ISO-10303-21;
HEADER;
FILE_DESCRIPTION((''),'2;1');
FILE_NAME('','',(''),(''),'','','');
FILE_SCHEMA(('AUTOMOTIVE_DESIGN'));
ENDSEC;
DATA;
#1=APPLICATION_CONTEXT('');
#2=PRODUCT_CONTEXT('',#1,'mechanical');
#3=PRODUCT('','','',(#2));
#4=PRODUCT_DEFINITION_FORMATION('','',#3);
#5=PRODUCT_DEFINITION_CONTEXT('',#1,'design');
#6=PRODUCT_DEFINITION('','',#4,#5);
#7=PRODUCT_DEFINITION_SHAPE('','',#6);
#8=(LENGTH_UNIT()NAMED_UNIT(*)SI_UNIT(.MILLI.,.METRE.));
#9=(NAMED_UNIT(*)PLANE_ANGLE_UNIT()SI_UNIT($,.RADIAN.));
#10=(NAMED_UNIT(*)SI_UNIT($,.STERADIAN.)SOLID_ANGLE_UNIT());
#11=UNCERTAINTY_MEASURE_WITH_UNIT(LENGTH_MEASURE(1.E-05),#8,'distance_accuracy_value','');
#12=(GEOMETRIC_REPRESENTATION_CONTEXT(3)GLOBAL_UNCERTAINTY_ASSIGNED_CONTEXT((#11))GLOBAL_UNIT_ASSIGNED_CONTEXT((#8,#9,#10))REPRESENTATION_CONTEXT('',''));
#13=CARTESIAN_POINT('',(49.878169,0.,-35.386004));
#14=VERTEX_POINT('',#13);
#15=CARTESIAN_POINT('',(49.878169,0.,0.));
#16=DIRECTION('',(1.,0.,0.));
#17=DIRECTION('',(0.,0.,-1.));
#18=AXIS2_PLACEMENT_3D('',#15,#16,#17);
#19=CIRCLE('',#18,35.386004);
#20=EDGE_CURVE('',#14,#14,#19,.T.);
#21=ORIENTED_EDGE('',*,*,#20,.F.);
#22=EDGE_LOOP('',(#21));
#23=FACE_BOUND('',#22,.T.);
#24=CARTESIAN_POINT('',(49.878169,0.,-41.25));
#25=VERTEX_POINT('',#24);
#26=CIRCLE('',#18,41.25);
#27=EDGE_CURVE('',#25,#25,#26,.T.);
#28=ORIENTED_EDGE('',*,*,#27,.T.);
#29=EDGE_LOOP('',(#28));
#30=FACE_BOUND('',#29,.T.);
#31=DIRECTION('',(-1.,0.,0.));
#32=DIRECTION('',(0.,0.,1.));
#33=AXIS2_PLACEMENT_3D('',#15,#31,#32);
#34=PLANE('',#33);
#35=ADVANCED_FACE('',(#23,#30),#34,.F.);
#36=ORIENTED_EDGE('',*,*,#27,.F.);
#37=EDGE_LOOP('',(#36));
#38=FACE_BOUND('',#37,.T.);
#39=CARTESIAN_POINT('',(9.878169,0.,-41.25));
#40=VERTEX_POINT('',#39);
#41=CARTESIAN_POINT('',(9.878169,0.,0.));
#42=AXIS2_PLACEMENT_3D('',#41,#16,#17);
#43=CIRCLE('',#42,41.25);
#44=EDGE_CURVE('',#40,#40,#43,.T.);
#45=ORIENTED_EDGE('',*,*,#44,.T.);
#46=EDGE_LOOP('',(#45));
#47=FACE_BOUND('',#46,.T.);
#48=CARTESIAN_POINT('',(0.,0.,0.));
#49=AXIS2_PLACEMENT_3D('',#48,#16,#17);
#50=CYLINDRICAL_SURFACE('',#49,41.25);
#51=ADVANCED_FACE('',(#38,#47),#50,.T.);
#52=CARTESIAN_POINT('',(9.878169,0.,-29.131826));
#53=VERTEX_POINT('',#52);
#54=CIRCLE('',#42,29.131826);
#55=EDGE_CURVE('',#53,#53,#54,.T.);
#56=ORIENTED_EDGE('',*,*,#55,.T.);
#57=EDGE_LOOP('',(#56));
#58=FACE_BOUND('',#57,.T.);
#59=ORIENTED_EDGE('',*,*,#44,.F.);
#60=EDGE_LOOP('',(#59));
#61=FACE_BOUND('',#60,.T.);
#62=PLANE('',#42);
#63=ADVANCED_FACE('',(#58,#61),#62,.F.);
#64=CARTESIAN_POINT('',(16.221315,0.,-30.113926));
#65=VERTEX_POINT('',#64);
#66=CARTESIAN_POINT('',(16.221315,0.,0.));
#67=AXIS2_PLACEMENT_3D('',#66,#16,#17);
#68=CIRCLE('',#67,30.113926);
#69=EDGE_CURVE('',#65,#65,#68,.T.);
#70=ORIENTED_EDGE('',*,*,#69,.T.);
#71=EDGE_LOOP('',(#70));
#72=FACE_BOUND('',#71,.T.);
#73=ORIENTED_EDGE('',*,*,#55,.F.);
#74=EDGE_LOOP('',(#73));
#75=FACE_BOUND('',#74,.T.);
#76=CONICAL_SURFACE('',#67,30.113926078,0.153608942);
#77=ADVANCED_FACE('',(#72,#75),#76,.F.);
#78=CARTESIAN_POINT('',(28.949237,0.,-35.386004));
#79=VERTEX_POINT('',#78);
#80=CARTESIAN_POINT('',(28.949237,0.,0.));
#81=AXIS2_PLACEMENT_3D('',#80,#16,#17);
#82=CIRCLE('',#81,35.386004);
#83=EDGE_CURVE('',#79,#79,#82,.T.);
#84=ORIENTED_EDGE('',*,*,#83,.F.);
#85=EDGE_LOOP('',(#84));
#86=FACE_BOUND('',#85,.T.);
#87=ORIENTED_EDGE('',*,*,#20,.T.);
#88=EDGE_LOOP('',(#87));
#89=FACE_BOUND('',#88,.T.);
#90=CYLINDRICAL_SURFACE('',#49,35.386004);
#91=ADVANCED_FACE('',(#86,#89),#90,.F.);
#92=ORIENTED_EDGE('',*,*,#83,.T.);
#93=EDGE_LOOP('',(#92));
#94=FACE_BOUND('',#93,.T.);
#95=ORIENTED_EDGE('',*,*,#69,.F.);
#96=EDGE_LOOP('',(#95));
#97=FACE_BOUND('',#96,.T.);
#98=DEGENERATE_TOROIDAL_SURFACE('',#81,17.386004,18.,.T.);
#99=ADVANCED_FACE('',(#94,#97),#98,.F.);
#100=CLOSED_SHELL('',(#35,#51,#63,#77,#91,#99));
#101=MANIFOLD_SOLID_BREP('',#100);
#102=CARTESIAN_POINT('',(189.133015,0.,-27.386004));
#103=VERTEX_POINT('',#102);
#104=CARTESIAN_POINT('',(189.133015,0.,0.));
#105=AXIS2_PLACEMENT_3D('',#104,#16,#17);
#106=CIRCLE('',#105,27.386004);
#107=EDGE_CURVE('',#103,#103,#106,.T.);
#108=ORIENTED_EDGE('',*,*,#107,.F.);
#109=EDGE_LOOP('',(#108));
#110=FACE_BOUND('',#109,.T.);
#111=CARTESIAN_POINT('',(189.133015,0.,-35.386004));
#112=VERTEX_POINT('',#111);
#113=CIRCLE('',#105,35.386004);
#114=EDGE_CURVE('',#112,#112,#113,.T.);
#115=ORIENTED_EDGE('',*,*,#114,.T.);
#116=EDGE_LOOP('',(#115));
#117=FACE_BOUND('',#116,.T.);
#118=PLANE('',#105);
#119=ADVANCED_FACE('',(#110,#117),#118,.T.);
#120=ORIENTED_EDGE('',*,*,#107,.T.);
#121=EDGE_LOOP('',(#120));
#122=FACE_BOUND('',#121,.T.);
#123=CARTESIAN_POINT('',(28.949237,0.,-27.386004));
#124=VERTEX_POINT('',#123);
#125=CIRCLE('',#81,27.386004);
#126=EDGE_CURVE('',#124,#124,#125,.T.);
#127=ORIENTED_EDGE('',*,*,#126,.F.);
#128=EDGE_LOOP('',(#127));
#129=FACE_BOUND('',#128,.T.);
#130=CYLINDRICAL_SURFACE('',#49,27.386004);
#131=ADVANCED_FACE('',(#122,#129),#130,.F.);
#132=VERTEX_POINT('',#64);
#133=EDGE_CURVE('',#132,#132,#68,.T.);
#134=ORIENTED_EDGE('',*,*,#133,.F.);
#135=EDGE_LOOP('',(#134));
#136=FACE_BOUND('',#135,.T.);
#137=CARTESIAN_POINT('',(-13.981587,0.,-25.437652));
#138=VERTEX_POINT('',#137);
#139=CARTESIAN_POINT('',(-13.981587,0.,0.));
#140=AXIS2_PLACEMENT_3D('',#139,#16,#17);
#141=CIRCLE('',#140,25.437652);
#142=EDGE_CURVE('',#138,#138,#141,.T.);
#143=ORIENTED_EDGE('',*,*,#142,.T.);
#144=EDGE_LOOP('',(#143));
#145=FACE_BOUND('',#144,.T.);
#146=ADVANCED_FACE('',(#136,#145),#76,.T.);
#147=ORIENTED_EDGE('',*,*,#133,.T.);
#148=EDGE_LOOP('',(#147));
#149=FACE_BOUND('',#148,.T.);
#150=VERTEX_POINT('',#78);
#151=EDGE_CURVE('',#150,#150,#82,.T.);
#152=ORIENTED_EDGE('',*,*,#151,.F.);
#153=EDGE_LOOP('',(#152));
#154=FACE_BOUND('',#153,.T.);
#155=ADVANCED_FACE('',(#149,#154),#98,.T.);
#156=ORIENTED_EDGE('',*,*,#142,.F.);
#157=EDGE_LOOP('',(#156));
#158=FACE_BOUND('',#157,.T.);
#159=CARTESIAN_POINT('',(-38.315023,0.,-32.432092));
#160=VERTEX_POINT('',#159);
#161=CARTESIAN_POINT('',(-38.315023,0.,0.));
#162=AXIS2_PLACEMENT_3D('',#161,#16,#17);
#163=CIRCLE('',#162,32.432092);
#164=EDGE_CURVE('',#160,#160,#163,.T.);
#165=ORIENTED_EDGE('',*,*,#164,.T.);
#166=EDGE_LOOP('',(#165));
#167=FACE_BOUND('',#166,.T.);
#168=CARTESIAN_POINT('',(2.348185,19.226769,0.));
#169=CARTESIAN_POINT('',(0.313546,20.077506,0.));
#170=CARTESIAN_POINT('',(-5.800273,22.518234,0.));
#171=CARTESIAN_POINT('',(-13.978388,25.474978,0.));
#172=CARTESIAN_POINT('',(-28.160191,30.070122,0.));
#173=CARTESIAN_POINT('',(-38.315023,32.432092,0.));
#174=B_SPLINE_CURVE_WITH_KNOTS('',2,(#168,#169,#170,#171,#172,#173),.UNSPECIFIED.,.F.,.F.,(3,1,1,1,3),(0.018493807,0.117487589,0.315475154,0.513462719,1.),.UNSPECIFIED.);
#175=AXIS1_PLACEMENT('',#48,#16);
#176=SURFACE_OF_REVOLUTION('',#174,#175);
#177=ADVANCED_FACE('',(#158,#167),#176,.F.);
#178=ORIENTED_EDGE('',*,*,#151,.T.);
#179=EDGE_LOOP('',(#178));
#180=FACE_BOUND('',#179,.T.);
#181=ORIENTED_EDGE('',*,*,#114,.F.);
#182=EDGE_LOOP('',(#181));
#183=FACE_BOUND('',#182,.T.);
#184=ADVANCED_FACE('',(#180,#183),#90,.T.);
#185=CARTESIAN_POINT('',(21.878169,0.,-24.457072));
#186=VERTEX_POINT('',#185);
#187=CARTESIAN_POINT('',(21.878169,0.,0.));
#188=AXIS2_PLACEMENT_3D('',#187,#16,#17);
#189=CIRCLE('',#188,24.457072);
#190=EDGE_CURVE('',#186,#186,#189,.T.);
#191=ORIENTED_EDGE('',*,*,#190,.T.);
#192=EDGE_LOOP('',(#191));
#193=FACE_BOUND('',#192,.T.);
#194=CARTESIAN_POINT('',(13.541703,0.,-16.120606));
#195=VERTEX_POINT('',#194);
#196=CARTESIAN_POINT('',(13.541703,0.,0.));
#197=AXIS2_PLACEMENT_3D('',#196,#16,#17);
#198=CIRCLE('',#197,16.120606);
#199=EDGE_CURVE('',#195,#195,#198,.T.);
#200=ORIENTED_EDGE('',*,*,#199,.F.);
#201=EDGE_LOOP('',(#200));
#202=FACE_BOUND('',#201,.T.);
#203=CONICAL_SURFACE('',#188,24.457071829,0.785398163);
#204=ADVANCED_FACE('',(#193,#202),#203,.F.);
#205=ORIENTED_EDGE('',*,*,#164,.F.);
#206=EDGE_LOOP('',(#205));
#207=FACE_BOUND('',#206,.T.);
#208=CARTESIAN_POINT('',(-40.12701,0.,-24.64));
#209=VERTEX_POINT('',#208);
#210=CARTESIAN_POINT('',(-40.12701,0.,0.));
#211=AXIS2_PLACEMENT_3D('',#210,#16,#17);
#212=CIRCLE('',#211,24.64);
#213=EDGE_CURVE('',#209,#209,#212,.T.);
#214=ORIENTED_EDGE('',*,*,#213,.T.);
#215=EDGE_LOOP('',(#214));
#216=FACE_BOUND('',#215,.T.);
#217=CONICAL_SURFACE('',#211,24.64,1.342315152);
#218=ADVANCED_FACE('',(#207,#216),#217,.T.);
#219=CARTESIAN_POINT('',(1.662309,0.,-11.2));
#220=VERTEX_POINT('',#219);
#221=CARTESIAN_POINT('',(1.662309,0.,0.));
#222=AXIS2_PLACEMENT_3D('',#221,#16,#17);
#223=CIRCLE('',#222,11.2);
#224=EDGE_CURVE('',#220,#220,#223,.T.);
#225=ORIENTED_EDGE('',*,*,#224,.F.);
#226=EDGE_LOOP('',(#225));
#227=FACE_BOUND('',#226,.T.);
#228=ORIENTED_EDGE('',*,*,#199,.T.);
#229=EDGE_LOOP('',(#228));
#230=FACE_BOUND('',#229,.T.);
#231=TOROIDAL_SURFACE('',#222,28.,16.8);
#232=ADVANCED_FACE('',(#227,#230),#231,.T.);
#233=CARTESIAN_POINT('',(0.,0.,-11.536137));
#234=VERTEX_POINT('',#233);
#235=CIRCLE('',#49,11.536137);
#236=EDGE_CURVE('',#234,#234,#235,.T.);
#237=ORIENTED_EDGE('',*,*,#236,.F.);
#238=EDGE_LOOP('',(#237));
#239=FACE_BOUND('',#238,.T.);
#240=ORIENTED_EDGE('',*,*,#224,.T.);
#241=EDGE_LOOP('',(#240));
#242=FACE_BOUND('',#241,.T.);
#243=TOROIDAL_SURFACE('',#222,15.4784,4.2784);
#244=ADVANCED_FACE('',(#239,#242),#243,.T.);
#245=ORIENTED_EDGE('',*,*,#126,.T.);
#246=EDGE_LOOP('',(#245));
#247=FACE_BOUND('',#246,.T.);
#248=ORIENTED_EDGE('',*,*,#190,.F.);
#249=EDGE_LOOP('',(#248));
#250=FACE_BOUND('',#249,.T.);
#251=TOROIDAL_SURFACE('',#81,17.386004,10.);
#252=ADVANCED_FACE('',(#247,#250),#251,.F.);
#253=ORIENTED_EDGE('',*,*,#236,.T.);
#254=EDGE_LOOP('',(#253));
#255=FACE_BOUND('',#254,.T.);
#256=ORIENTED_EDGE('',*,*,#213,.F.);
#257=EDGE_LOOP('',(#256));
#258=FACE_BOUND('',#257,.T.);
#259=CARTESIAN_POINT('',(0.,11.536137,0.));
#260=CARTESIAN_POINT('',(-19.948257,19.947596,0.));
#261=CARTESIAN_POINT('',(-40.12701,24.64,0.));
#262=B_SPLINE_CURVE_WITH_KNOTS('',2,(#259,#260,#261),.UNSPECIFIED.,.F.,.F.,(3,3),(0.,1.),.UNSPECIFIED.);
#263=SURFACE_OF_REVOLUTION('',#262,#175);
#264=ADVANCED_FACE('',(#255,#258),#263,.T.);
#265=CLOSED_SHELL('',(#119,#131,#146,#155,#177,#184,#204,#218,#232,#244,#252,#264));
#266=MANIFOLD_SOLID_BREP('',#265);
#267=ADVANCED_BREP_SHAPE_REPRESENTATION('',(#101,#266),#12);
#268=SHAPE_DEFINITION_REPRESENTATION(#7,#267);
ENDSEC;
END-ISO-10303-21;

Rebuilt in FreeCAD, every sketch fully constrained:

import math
import FreeCAD as App
import Part
import Sketcher
Q = App.Units.Quantity

doc = App.newDocument("Part")
body = doc.addObject("PartDesign::Body", "Body")

sketch1 = body.newObject("Sketcher::SketchObject", "Sketch")
sketch1.AttachmentSupport = (doc.getObject("XY_Plane"), [""])
sketch1.MapMode = "FlatFace"
sketch1.addGeometry(Part.LineSegment(App.Vector(28.949237, 27.386004, 0), App.Vector(189.133015, 27.386004, 0)), False)
sketch1.addGeometry(Part.LineSegment(App.Vector(189.133015, 27.386004, 0), App.Vector(189.133015, 35.386004, 0)), False)
sketch1.addGeometry(Part.LineSegment(App.Vector(189.133015, 35.386004, 0), App.Vector(28.949237, 35.386004, 0)), False)
sketch1.addGeometry(Part.ArcOfCircle(Part.Circle(App.Vector(28.949237, 17.386004, 0), App.Vector(0, 0, 1), 18), math.radians(90), math.radians(135)), False)
sketch1.addGeometry(Part.LineSegment(App.Vector(16.221315, 30.113926, 0), App.Vector(-13.981587, 25.437652, 0)), False)
sketch1.addGeometry(Part.BSplineCurve([App.Vector(-13.981587, 25.437652, 0), App.Vector(-16.029315, 26.139513, 0), App.Vector(-28.160191, 30.070122, 0), App.Vector(-38.315023, 32.432092, 0)], [3, 1, 3], [0.414468937, 0.513462719, 1], False, 2, [1, 1, 1, 1], False), False)
sketch1.addGeometry(Part.LineSegment(App.Vector(-38.315023, 32.432092, 0), App.Vector(-40.12701, 24.64, 0)), False)
sketch1.addGeometry(Part.BSplineCurve([App.Vector(0, 11.536137, 0), App.Vector(-19.948257, 19.947596, 0), App.Vector(-40.12701, 24.64, 0)], [3, 3], [0, 1], False, 2, [1, 1, 1], False), False)
sketch1.addGeometry(Part.ArcOfCircle(Part.Circle(App.Vector(1.662309, 15.4784, 0), App.Vector(0, 0, 1), 4.2784), math.radians(-112.863392), math.radians(-90)), False)
sketch1.addGeometry(Part.ArcOfCircle(Part.Circle(App.Vector(1.662309, 28, 0), App.Vector(0, 0, 1), 16.8), math.radians(-90), math.radians(-45)), False)
sketch1.addGeometry(Part.LineSegment(App.Vector(13.541703, 16.120606, 0), App.Vector(21.878169, 24.457072, 0)), False)
sketch1.addGeometry(Part.ArcOfCircle(Part.Circle(App.Vector(28.949237, 17.386004, 0), App.Vector(0, 0, 1), 10), math.radians(90), math.radians(135)), False)
sketch1.addConstraint(Sketcher.Constraint("Block", 5))
sketch1.addConstraint(Sketcher.Constraint("Block", 7))
sketch1.addConstraint(Sketcher.Constraint("Coincident", 0, 2, 1, 1))
sketch1.addConstraint(Sketcher.Constraint("Coincident", 1, 2, 2, 1))
sketch1.addConstraint(Sketcher.Constraint("Tangent", 2, 2, 3, 1))
sketch1.addConstraint(Sketcher.Constraint("Coincident", 3, 2, 4, 1))
sketch1.addConstraint(Sketcher.Constraint("Coincident", 4, 2, 5, 1))
sketch1.addConstraint(Sketcher.Constraint("Coincident", 5, 2, 6, 1))
sketch1.addConstraint(Sketcher.Constraint("Coincident", 6, 2, 7, 2))
sketch1.addConstraint(Sketcher.Constraint("Coincident", 7, 1, 8, 1))
sketch1.addConstraint(Sketcher.Constraint("Tangent", 8, 2, 9, 1))
sketch1.addConstraint(Sketcher.Constraint("Tangent", 9, 2, 10, 1))
sketch1.addConstraint(Sketcher.Constraint("Tangent", 10, 2, 11, 2))
sketch1.addConstraint(Sketcher.Constraint("Tangent", 11, 1, 0, 1))
sketch1.addConstraint(Sketcher.Constraint("Horizontal", 0))
sketch1.addConstraint(Sketcher.Constraint("Vertical", 1))
sketch1.addConstraint(Sketcher.Constraint("Horizontal", 2))
sketch1.addConstraint(Sketcher.Constraint("Coincident", 11, 3, 3, 3))
sketch1.addConstraint(Sketcher.Constraint("Vertical", 8, 3, 9, 3))
sketch1.addConstraint(Sketcher.Constraint("Radius", 3, Q("18 mm")))
sketch1.addConstraint(Sketcher.Constraint("Radius", 11, Q("10 mm")))
sketch1.addConstraint(Sketcher.Constraint("Radius", 9, Q("16.8 mm")))
sketch1.addConstraint(Sketcher.Constraint("Angle", 10, Q("45 deg")))
sketch1.addConstraint(Sketcher.Constraint("DistanceY", -1, 1, 9, 3, Q("28 mm")))
sketch1.addConstraint(Sketcher.Constraint("Radius", 8, Q("4.2784 mm")))
sketch1.addConstraint(Sketcher.Constraint("DistanceX", 0, 1, 0, 2, Q("160.183778 mm")))
sketch1.addConstraint(Sketcher.Constraint("DistanceX", 4, 2, 3, 2, Q("30.202902 mm")))
sketch1.addConstraint(Sketcher.Constraint("DistanceX", -1, 1, 10, 2, Q("21.878169 mm")))
revolution = body.newObject("PartDesign::Revolution", "Revolution")
revolution.Profile = sketch1
revolution.ReferenceAxis = (sketch1, ["H_Axis"])
revolution.Angle = 360
body2 = doc.addObject("PartDesign::Body", "Body001")

sketch2 = body2.newObject("Sketcher::SketchObject", "Sketch001")
sketch2.AttachmentSupport = (doc.getObject("XY_Plane001"), [""])
sketch2.MapMode = "FlatFace"
sketch2.addGeometry(Part.LineSegment(App.Vector(10, 29, 0), App.Vector(16, 30, 0)), False)
sketch2.addGeometry(Part.ArcOfCircle(Part.Circle(App.Vector(29, 17, 0), App.Vector(0, 0, 1), 18), math.radians(90), math.radians(135)), False)
sketch2.addGeometry(Part.LineSegment(App.Vector(29, 35, 0), App.Vector(50, 35, 0)), False)
sketch2.addGeometry(Part.LineSegment(App.Vector(50, 35, 0), App.Vector(50, 41, 0)), False)
sketch2.addGeometry(Part.LineSegment(App.Vector(50, 41, 0), App.Vector(10, 41, 0)), False)
sketch2.addGeometry(Part.LineSegment(App.Vector(10, 41, 0), App.Vector(10, 29, 0)), False)
sketch2.addConstraint(Sketcher.Constraint("Coincident", 0, 2, 1, 2))
sketch2.addConstraint(Sketcher.Constraint("Tangent", 1, 1, 2, 1))
sketch2.addConstraint(Sketcher.Constraint("Coincident", 2, 2, 3, 1))
sketch2.addConstraint(Sketcher.Constraint("Coincident", 3, 2, 4, 1))
sketch2.addConstraint(Sketcher.Constraint("Coincident", 4, 2, 5, 1))
sketch2.addConstraint(Sketcher.Constraint("Coincident", 5, 2, 0, 1))
sketch2.addConstraint(Sketcher.Constraint("Horizontal", 2))
sketch2.addConstraint(Sketcher.Constraint("Vertical", 3))
sketch2.addConstraint(Sketcher.Constraint("Horizontal", 4))
sketch2.addConstraint(Sketcher.Constraint("Vertical", 5))
sketch2.addConstraint(Sketcher.Constraint("Radius", 1, Q("18 mm")))
sketch2.addConstraint(Sketcher.Constraint("DistanceX", 4, 2, 4, 1, Q("40 mm")))
sketch2.addConstraint(Sketcher.Constraint("DistanceY", -1, 1, 3, 2, Q("41.25 mm")))
sketch2.addConstraint(Sketcher.Constraint("DistanceY", 5, 2, 0, 2, Q("0.982101 mm")))
sketch2.addConstraint(Sketcher.Constraint("DistanceX", 2, 1, 2, 2, Q("20.928932 mm")))
sketch2.addConstraint(Sketcher.Constraint("DistanceY", 3, 1, 3, 2, Q("5.863996 mm")))
sketch2.addConstraint(Sketcher.Constraint("DistanceY", 5, 2, 5, 1, Q("12.118174 mm")))
sketch2.addConstraint(Sketcher.Constraint("DistanceX", -1, 1, 2, 2, Q("49.878169 mm")))
revolution2 = body2.newObject("PartDesign::Revolution", "Revolution001")
revolution2.Profile = sketch2
revolution2.ReferenceAxis = (sketch2, ["H_Axis"])
revolution2.Angle = 360

doc.recompute()
